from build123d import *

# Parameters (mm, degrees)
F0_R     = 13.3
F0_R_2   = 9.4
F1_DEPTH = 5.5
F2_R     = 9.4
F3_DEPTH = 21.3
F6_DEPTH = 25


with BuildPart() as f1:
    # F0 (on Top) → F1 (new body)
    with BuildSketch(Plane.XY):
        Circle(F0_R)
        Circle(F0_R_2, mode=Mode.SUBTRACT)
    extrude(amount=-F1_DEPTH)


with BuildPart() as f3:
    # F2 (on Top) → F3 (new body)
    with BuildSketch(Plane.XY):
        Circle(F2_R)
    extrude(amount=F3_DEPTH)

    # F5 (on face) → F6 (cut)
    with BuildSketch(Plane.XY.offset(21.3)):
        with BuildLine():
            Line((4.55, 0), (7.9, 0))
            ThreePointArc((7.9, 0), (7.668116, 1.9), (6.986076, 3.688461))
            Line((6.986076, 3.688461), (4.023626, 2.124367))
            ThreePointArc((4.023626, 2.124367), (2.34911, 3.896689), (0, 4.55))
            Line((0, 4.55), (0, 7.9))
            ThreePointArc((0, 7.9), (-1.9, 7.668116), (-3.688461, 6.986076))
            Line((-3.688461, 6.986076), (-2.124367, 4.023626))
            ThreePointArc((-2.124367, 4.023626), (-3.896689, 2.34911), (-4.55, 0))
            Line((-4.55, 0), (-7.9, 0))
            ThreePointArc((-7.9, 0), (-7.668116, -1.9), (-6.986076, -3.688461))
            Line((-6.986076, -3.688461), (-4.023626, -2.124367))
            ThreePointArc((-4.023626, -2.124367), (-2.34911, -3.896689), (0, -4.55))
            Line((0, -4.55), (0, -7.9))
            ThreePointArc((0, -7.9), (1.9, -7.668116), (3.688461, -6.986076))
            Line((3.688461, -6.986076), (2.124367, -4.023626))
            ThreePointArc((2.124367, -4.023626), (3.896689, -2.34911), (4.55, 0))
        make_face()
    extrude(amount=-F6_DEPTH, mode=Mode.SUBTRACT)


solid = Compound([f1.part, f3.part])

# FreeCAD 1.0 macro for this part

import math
import FreeCAD as App
import Part
import Sketcher
from FreeCAD import Vector
Q = App.Units.Quantity

doc = App.newDocument("Part")
params = doc.addObject("Spreadsheet::Sheet", "Params")
for row, (alias, value) in enumerate([
    ("sketch1_diameter", "26.6 mm"),
    ("sketch1_diameter2", "18.8 mm"),
    ("pad1_length", "5.5 mm"),
    ("sketch2_diameter", "18.8 mm"),
    ("pad2_length", "21.3 mm"),
    ("sketch3_radius", "4.549999 mm"),
    ("sketch3_width", "3.35 mm"),
    ("pocket1_length", "25 mm"),
], start=1):
    params.set(f"A{row}", alias)
    params.set(f"B{row}", "=" + value)
    params.setAlias(f"B{row}", alias)

body = doc.addObject("PartDesign::Body", "Body")

sketch1 = body.newObject("Sketcher::SketchObject", "Sketch")
sketch1.AttachmentSupport = (doc.getObject("XY_Plane"), [""])
sketch1.MapMode = "FlatFace"
sketch1.addGeometry([
    Part.Circle(Vector(0, 0, 0), Vector(0, 0, 1), 13.3),
    Part.Circle(Vector(0, 0, 0), Vector(0, 0, 1), 9.4),
], False)
sketch1.addConstraint([
    Sketcher.Constraint("Coincident", 0, 3, -1, 1),
    Sketcher.Constraint("Coincident", 1, 3, -1, 1),
    Sketcher.Constraint("Diameter", 0, Q("26.6 mm")),
    Sketcher.Constraint("Diameter", 1, Q("18.8 mm")),
])
sketch1.setExpression("Constraints[2]", "Params.sketch1_diameter")
sketch1.setExpression("Constraints[3]", "Params.sketch1_diameter2")
pad1 = body.newObject("PartDesign::Pad", "Pad")
pad1.Profile = sketch1
pad1.setExpression("Length", "Params.pad1_length")
pad1.Reversed = True
body2 = doc.addObject("PartDesign::Body", "Body001")

sketch2 = body2.newObject("Sketcher::SketchObject", "Sketch001")
sketch2.AttachmentSupport = (doc.getObject("XY_Plane001"), [""])
sketch2.MapMode = "FlatFace"
sketch2.addGeometry(Part.Circle(Vector(0, 0, 0), Vector(0, 0, 1), 9.4), False)
sketch2.addConstraint([
    Sketcher.Constraint("Coincident", 0, 3, -1, 1),
    Sketcher.Constraint("Diameter", 0, Q("18.8 mm")),
])
sketch2.setExpression("Constraints[1]", "Params.sketch2_diameter")
pad2 = body2.newObject("PartDesign::Pad", "Pad001")
pad2.Profile = sketch2
pad2.setExpression("Length", "Params.pad2_length")

sketch3 = body2.newObject("Sketcher::SketchObject", "Sketch002")
sketch3.AttachmentSupport = (doc.getObject("XY_Plane001"), [""])
sketch3.MapMode = "FlatFace"
sketch3.AttachmentOffset = App.Placement(Vector(0, 0, 21.3), App.Rotation())
sketch3.addGeometry([
    Part.LineSegment(Vector(4.55, 0, 0), Vector(7.9, 0, 0)),
    Part.ArcOfCircle(Part.Circle(Vector(0.000004, 0.000001, 0), Vector(0, 0, 1), 7.899996), math.radians(-0.000009), math.radians(27.832858)),
    Part.LineSegment(Vector(6.986076, 3.688461, 0), Vector(4.023626, 2.124367, 0)),
    Part.ArcOfCircle(Part.Circle(Vector(0.000001, 0.000001, 0), Vector(0, 0, 1), 4.549999), math.radians(27.832847), math.radians(90.000013)),
    Part.LineSegment(Vector(0, 4.55, 0), Vector(0, 7.9, 0)),
    Part.ArcOfCircle(Part.Circle(Vector(-0.000001, 0.000004, 0), Vector(0, 0, 1), 7.899996), math.radians(89.999991), math.radians(117.832858)),
    Part.LineSegment(Vector(-3.688461, 6.986076, 0), Vector(-2.124367, 4.023626, 0)),
    Part.ArcOfCircle(Part.Circle(Vector(-0.000001, 0.000001, 0), Vector(0, 0, 1), 4.549999), math.radians(117.832847), math.radians(180.000013)),
    Part.LineSegment(Vector(-4.55, 0, 0), Vector(-7.9, 0, 0)),
    Part.ArcOfCircle(Part.Circle(Vector(-0.000004, -0.000001, 0), Vector(0, 0, 1), 7.899996), math.radians(179.999991), math.radians(207.832858)),
    Part.LineSegment(Vector(-6.986076, -3.688461, 0), Vector(-4.023626, -2.124367, 0)),
    Part.ArcOfCircle(Part.Circle(Vector(-0.000001, -0.000001, 0), Vector(0, 0, 1), 4.549999), math.radians(-152.167153), math.radians(-89.999987)),
    Part.LineSegment(Vector(0, -4.55, 0), Vector(0, -7.9, 0)),
    Part.ArcOfCircle(Part.Circle(Vector(0.000001, -0.000004, 0), Vector(0, 0, 1), 7.899996), math.radians(-90.000009), math.radians(-62.167142)),
    Part.LineSegment(Vector(3.688461, -6.986076, 0), Vector(2.124367, -4.023626, 0)),
    Part.ArcOfCircle(Part.Circle(Vector(0.000001, -0.000001, 0), Vector(0, 0, 1), 4.549999), math.radians(-62.167153), math.radians(0.000013)),
], False)
sketch3.addConstraint([
    Sketcher.Constraint("Coincident", 0, 2, 1, 1),
    Sketcher.Constraint("Coincident", 1, 2, 2, 1),
    Sketcher.Constraint("Coincident", 2, 2, 3, 1),
    Sketcher.Constraint("Coincident", 3, 2, 4, 1),
    Sketcher.Constraint("Coincident", 4, 2, 5, 1),
    Sketcher.Constraint("Coincident", 5, 2, 6, 1),
    Sketcher.Constraint("Coincident", 6, 2, 7, 1),
    Sketcher.Constraint("Coincident", 7, 2, 8, 1),
    Sketcher.Constraint("Coincident", 8, 2, 9, 1),
    Sketcher.Constraint("Coincident", 9, 2, 10, 1),
    Sketcher.Constraint("Coincident", 10, 2, 11, 1),
    Sketcher.Constraint("Coincident", 11, 2, 12, 1),
    Sketcher.Constraint("Coincident", 12, 2, 13, 1),
    Sketcher.Constraint("Coincident", 13, 2, 14, 1),
    Sketcher.Constraint("Coincident", 14, 2, 15, 1),
    Sketcher.Constraint("Coincident", 15, 2, 0, 1),
    Sketcher.Constraint("Horizontal", 0),
    Sketcher.Constraint("Vertical", 4),
    Sketcher.Constraint("Horizontal", 8),
    Sketcher.Constraint("Vertical", 12),
    Sketcher.Constraint("Coincident", 1, 3, -1, 1),
    Sketcher.Constraint("Coincident", 3, 3, -1, 1),
    Sketcher.Constraint("Coincident", 5, 3, -1, 1),
    Sketcher.Constraint("Coincident", 7, 3, -1, 1),
    Sketcher.Constraint("Coincident", 9, 3, -1, 1),
    Sketcher.Constraint("Coincident", 11, 3, -1, 1),
    Sketcher.Constraint("Coincident", 13, 3, -1, 1),
    Sketcher.Constraint("Coincident", 15, 3, -1, 1),
    Sketcher.Constraint("Equal", 1, 5),
    Sketcher.Constraint("Equal", 3, 7),
    Sketcher.Constraint("Equal", 5, 9),
    Sketcher.Constraint("Equal", 7, 11),
    Sketcher.Constraint("Equal", 9, 13),
    Sketcher.Constraint("Equal", 11, 15),
    Sketcher.Constraint("PointOnObject", 0, 2, -1),
    Sketcher.Constraint("PointOnObject", 3, 2, -2),
    Sketcher.Constraint("PointOnObject", 7, 2, -1),
    Sketcher.Constraint("PointOnObject", 11, 2, -2),
    Sketcher.Constraint("Perpendicular", 2, 6),
    Sketcher.Constraint("Perpendicular", 6, 10),
    Sketcher.Constraint("Perpendicular", 10, 14),
    Sketcher.Constraint("Radius", 3, Q("4.549999 mm")),
    Sketcher.Constraint("DistanceX", 0, 1, 0, 2, Q("3.35 mm")),
    Sketcher.Constraint("DistanceY", -1, 1, 1, 2, Q("3.688461 mm")),
    Sketcher.Constraint("DistanceX", 5, 2, -1, 1, Q("3.688461 mm")),
    Sketcher.Constraint("DistanceY", 9, 2, -1, 1, Q("3.688461 mm")),
    Sketcher.Constraint("DistanceX", -1, 1, 13, 2, Q("3.688461 mm")),
    Sketcher.Constraint("DistanceX", 2, 2, 1, 2, Q("2.96245 mm")),
])
sketch3.setExpression("Constraints[41]", "Params.sketch3_radius")
sketch3.setExpression("Constraints[42]", "Params.sketch3_width")
pocket1 = body2.newObject("PartDesign::Pocket", "Pocket")
pocket1.Profile = sketch3
pocket1.setExpression("Length", "Params.pocket1_length")

doc.recompute()
